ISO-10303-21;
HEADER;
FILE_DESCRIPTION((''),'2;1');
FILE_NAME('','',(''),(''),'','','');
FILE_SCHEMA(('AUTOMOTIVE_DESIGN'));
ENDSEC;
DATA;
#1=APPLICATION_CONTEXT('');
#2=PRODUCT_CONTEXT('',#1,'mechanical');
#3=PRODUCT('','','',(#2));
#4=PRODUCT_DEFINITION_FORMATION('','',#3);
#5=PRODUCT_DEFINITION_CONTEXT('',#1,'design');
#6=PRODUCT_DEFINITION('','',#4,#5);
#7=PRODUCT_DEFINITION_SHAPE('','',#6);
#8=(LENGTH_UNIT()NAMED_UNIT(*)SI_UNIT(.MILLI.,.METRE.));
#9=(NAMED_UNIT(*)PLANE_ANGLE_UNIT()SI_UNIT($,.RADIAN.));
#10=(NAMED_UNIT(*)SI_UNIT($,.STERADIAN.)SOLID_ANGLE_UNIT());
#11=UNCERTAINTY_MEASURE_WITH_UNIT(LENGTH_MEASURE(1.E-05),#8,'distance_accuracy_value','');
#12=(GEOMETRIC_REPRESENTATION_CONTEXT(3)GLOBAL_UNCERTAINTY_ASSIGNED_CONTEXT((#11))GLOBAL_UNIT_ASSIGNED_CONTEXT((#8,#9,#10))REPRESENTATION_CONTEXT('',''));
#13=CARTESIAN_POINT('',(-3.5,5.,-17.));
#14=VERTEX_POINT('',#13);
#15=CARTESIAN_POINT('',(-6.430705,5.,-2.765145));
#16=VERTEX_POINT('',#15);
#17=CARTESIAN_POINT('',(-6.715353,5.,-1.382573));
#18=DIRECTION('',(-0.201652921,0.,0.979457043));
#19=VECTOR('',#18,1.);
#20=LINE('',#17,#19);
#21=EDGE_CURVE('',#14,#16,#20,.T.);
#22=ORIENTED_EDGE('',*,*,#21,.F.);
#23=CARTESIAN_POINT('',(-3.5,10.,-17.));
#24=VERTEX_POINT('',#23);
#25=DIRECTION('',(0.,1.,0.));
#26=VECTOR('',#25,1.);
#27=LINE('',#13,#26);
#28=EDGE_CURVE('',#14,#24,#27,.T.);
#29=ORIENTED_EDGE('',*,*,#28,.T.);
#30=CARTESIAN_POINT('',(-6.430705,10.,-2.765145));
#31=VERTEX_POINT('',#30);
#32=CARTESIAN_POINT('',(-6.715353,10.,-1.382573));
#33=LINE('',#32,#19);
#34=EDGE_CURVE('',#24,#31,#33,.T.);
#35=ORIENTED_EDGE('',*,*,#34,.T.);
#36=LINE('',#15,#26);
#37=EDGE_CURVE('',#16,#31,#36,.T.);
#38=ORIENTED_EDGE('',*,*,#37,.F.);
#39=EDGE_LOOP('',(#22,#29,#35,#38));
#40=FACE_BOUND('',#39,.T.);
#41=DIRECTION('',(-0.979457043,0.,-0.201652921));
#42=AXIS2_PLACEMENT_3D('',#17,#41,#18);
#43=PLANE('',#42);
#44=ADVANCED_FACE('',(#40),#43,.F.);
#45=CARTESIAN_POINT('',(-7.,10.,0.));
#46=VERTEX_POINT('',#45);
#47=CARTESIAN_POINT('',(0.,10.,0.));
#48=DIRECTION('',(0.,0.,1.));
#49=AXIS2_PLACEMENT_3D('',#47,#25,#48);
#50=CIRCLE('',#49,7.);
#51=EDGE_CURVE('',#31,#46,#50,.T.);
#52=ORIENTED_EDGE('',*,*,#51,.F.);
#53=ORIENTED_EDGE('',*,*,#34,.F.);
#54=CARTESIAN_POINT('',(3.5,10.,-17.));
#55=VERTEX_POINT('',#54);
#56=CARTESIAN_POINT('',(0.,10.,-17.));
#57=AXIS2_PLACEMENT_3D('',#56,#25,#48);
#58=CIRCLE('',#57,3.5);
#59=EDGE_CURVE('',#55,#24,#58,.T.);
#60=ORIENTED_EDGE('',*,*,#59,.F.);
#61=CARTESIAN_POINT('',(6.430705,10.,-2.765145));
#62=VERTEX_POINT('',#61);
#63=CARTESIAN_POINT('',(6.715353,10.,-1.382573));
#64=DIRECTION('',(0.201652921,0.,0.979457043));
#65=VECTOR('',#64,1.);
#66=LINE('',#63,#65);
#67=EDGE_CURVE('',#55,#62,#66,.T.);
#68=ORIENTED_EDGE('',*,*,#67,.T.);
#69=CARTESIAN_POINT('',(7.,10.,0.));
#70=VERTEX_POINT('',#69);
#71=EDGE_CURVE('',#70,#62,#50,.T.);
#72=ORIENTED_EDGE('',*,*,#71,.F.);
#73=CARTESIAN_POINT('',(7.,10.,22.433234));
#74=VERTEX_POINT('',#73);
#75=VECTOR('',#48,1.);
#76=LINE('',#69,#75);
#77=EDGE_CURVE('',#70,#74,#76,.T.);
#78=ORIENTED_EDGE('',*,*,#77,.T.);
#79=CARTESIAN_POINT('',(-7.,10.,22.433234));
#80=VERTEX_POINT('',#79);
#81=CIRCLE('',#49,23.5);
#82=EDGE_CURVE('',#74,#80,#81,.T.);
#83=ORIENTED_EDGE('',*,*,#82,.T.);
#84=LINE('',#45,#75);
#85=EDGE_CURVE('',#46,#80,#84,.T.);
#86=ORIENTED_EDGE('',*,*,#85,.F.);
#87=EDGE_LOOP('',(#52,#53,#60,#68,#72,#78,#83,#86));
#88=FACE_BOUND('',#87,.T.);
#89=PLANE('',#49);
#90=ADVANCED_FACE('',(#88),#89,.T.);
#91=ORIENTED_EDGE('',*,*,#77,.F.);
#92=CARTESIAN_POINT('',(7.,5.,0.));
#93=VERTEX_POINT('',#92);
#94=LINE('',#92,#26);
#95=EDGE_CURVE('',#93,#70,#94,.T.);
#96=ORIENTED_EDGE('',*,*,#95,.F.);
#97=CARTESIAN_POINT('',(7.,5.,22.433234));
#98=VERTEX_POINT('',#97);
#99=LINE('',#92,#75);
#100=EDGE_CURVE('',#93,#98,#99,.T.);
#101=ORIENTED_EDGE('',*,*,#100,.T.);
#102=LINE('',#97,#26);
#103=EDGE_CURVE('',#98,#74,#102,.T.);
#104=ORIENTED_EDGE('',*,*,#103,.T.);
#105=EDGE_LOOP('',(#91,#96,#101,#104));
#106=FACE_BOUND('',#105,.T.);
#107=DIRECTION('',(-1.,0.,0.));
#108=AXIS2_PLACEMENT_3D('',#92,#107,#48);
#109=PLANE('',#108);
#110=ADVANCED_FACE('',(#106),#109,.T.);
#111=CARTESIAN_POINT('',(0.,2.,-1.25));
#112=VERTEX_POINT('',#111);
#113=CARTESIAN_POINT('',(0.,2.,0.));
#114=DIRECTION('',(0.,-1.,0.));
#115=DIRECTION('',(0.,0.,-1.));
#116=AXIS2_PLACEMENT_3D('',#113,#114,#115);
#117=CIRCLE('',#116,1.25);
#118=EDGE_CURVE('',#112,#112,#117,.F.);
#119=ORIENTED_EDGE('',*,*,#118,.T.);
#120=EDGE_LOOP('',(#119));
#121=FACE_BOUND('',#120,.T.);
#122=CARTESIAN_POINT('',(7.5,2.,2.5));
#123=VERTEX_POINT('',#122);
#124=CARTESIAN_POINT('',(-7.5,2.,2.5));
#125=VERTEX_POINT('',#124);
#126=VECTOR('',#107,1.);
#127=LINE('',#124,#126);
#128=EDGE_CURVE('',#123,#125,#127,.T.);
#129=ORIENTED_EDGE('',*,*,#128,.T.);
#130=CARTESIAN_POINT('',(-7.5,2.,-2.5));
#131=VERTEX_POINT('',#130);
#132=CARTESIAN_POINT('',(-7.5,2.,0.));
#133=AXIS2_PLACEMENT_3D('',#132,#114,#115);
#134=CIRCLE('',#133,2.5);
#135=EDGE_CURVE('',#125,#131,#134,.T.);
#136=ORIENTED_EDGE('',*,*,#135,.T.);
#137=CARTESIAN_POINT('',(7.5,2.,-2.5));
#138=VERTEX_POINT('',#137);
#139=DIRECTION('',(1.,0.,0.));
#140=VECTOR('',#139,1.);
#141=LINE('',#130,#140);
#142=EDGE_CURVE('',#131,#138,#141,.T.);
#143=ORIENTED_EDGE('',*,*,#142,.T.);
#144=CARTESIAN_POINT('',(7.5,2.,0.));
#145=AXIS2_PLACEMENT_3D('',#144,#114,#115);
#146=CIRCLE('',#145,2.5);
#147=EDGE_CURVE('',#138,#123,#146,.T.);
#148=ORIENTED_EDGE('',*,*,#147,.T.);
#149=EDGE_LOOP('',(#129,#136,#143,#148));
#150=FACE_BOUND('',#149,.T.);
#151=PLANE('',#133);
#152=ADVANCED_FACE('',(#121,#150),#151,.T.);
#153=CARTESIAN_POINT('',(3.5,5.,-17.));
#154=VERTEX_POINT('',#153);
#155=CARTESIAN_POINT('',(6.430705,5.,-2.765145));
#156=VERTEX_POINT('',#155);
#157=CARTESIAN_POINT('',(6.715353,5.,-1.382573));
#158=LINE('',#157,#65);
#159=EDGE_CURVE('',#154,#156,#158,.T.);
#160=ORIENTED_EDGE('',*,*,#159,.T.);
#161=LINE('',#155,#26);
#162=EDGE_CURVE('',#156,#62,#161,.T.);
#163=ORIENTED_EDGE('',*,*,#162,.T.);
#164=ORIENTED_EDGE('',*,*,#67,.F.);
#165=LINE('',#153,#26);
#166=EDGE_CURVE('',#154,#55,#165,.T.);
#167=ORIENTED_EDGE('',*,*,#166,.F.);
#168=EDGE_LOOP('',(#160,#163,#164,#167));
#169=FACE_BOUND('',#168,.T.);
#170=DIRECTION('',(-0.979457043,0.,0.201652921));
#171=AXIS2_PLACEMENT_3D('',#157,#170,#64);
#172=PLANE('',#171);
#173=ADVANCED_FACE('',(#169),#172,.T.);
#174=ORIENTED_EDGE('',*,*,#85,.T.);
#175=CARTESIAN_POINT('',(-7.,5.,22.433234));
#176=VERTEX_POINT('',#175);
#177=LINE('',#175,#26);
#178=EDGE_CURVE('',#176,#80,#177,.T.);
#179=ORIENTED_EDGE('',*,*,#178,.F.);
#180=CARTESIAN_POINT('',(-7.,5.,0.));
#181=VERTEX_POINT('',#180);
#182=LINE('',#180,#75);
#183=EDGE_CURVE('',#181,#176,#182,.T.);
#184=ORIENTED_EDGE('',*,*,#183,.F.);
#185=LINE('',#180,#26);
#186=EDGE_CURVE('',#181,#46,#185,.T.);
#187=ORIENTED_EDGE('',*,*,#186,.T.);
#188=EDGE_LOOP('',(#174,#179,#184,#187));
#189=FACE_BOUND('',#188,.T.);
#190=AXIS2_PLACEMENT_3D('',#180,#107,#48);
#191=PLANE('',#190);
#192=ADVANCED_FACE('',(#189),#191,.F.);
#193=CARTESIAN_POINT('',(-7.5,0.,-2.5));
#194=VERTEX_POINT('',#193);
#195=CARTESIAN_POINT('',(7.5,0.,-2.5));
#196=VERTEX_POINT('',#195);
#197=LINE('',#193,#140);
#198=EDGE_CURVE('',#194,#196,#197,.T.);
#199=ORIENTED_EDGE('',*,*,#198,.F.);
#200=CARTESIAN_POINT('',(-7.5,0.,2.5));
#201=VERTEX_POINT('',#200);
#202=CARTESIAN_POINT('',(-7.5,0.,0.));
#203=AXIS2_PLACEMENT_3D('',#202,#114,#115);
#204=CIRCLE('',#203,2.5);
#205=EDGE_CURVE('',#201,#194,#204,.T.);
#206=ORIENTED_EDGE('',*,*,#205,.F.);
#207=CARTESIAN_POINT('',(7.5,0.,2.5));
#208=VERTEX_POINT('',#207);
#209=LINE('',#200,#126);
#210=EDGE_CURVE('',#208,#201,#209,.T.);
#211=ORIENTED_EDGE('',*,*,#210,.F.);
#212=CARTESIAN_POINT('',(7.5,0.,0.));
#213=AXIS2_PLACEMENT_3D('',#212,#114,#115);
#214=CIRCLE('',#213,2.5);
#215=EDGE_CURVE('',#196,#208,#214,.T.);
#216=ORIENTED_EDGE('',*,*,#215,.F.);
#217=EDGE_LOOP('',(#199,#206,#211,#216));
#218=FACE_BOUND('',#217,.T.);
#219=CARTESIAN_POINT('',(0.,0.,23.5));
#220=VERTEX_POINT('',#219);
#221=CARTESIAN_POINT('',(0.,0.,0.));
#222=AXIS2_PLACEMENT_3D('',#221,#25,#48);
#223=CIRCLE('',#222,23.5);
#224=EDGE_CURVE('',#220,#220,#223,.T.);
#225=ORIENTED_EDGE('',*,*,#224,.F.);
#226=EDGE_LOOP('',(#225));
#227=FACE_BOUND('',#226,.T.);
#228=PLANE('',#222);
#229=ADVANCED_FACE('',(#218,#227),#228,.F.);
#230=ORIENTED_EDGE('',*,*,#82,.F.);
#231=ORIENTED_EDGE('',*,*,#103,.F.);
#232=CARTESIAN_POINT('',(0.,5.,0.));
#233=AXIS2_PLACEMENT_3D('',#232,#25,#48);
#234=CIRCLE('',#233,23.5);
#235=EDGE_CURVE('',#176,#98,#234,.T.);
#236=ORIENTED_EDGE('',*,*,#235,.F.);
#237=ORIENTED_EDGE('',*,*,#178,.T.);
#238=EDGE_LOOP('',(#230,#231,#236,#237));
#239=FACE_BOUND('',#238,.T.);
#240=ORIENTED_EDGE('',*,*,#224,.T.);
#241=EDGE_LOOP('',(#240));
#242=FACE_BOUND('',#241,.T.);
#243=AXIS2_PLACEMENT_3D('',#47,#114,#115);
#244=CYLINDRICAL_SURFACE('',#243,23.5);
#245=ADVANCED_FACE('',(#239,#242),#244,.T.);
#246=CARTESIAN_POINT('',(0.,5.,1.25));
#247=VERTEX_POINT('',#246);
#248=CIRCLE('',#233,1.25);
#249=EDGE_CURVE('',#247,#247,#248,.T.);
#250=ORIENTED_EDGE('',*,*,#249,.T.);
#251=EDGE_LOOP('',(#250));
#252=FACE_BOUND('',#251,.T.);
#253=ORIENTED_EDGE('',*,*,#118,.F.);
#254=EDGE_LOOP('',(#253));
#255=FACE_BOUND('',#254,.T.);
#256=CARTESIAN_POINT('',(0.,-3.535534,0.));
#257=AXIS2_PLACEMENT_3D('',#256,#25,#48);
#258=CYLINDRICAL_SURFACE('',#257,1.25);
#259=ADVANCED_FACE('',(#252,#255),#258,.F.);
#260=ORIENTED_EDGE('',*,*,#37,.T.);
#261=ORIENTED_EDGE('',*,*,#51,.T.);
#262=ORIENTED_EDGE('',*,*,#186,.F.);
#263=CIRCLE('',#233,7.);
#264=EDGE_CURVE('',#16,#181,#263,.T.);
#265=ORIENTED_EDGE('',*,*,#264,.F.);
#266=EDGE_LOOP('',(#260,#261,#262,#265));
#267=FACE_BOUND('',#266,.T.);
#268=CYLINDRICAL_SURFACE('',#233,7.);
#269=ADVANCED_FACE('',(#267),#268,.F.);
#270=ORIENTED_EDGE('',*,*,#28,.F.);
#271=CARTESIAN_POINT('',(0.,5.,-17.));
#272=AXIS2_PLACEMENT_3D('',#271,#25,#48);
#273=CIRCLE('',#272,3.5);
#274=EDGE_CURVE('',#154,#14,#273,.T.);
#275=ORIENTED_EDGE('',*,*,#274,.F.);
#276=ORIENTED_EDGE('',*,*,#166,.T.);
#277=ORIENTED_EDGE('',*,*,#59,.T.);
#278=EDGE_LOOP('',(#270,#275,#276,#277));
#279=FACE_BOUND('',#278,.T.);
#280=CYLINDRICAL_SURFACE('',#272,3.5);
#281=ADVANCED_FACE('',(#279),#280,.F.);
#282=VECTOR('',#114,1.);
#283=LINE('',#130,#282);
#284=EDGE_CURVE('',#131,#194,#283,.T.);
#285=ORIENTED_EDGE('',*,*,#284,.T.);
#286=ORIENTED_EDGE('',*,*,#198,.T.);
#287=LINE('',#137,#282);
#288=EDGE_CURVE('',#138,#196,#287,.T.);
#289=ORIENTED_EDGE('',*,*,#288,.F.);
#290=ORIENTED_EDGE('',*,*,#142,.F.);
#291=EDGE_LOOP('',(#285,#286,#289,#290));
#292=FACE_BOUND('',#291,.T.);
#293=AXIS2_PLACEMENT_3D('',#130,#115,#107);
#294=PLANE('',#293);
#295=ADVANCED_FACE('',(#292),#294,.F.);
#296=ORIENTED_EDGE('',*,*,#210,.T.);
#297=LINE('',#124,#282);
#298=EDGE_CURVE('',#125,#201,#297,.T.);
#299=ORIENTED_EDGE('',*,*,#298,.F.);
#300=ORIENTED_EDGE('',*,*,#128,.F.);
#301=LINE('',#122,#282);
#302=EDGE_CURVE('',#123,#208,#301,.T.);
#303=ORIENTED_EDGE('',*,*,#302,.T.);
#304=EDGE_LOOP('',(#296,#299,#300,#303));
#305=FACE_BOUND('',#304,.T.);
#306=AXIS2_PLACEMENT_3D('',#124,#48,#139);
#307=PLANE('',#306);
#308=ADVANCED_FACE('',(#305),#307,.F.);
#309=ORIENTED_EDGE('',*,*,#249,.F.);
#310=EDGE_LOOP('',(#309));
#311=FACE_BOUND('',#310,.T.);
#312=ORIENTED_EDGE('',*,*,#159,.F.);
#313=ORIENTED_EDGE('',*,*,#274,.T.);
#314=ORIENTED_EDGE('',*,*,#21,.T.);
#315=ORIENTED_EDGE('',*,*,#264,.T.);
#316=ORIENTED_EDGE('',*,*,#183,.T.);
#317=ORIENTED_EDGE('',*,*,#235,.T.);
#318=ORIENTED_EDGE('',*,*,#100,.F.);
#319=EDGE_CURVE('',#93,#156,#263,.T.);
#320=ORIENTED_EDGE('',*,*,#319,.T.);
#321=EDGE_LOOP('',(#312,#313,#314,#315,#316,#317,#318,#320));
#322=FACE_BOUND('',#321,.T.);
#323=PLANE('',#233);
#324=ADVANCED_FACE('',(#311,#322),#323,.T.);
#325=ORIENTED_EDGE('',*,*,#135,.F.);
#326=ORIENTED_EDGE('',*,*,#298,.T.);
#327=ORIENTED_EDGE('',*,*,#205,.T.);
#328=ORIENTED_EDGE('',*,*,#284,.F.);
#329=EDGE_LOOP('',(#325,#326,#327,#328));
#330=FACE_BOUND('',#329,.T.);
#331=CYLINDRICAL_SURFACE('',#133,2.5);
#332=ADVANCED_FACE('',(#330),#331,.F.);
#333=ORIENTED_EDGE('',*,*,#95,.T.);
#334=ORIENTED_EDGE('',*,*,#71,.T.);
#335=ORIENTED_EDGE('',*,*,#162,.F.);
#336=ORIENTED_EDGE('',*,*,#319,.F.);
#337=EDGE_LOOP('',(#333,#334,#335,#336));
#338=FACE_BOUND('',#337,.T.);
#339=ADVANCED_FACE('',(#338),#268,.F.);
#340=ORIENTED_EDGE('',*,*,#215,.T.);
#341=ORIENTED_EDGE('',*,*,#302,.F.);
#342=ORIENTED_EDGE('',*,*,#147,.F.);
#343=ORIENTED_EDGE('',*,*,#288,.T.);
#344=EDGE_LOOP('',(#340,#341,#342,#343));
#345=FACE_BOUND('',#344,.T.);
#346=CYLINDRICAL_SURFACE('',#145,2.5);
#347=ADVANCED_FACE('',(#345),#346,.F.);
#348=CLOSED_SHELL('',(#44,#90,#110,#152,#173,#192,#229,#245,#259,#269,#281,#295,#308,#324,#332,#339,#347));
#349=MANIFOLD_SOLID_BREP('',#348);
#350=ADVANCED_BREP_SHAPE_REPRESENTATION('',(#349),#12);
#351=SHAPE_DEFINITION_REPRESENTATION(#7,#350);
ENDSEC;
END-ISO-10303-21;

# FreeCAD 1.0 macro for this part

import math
import FreeCAD as App
import Part
import Sketcher
Q = App.Units.Quantity

doc = App.newDocument("Part")
body = doc.addObject("PartDesign::Body", "Body")

sketch1 = body.newObject("Sketcher::SketchObject", "Sketch")
sketch1.AttachmentSupport = (doc.getObject("XZ_Plane"), [""])
sketch1.MapMode = "FlatFace"
sketch1.addGeometry(Part.Circle(App.Vector(0, 0, 0), App.Vector(0, 0, 1), 24), False)
sketch1.addConstraint(Sketcher.Constraint("Coincident", 0, 3, -1, 1))
sketch1.addConstraint(Sketcher.Constraint("Diameter", 0, Q("47 mm")))
pad1 = body.newObject("PartDesign::Pad", "Pad")
pad1.Profile = sketch1
pad1.Length = 10
pad1.Reversed = True

sketch2 = body.newObject("Sketcher::SketchObject", "Sketch001")
sketch2.AttachmentSupport = (doc.getObject("XZ_Plane"), [""])
sketch2.MapMode = "FlatFace"
sketch2.AttachmentOffset = App.Placement(App.Vector(0, 0, -10), App.Rotation())
sketch2.addGeometry(Part.LineSegment(App.Vector(6.4, -2.8, 0), App.Vector(3.5, -17, 0)), False)
sketch2.addGeometry(Part.ArcOfCircle(Part.Circle(App.Vector(0, -17, 0), App.Vector(0, 0, 1), 3.5), math.radians(180), math.radians(360)), False)
sketch2.addGeometry(Part.LineSegment(App.Vector(-3.5, -17, 0), App.Vector(-6.4, -2.8, 0)), False)
sketch2.addGeometry(Part.ArcOfCircle(Part.Circle(App.Vector(0, 0, 0), App.Vector(0, 0, 1), 7), math.radians(180), math.radians(203)), False)
sketch2.addGeometry(Part.LineSegment(App.Vector(-7, 0, 0), App.Vector(-7, 22.4, 0)), False)
sketch2.addGeometry(Part.ArcOfCircle(Part.Circle(App.Vector(0, 0, 0), App.Vector(0, 0, 1), 23.5), math.radians(90), math.radians(107.33)), False)
sketch2.addGeometry(Part.ArcOfCircle(Part.Circle(App.Vector(0, 0, 0), App.Vector(0, 0, 1), 23.5), math.radians(72.67), math.radians(90)), False)
sketch2.addGeometry(Part.LineSegment(App.Vector(7, 22.4, 0), App.Vector(7, 0, 0)), False)
sketch2.addGeometry(Part.ArcOfCircle(Part.Circle(App.Vector(0, 0, 0), App.Vector(0, 0, 1), 7), math.radians(-23), math.radians(0)), False)
sketch2.addConstraint(Sketcher.Constraint("Coincident", 0, 2, 1, 2))
sketch2.addConstraint(Sketcher.Constraint("Coincident", 1, 1, 2, 1))
sketch2.addConstraint(Sketcher.Constraint("Coincident", 2, 2, 3, 2))
sketch2.addConstraint(Sketcher.Constraint("Tangent", 3, 1, 4, 1))
sketch2.addConstraint(Sketcher.Constraint("Coincident", 4, 2, 5, 2))
sketch2.addConstraint(Sketcher.Constraint("Tangent", 5, 1, 6, 2))
sketch2.addConstraint(Sketcher.Constraint("Coincident", 6, 1, 7, 1))
sketch2.addConstraint(Sketcher.Constraint("Tangent", 7, 2, 8, 2))
sketch2.addConstraint(Sketcher.Constraint("Coincident", 8, 1, 0, 1))
sketch2.addConstraint(Sketcher.Constraint("Vertical", 4))
sketch2.addConstraint(Sketcher.Constraint("Vertical", 7))
sketch2.addConstraint(Sketcher.Constraint("Coincident", 3, 3, -1, 1))
sketch2.addConstraint(Sketcher.Constraint("Coincident", 5, 3, -1, 1))
sketch2.addConstraint(Sketcher.Constraint("Coincident", 8, 3, -1, 1))
sketch2.addConstraint(Sketcher.Constraint("Equal", 5, 6))
sketch2.addConstraint(Sketcher.Constraint("Equal", 3, 8))
sketch2.addConstraint(Sketcher.Constraint("Symmetric", 0, 2, 1, 1, -2))
sketch2.addConstraint(Sketcher.Constraint("PointOnObject", 5, 1, -2))
sketch2.addConstraint(Sketcher.Constraint("Horizontal", 1, 3, 0, 2))
sketch2.addConstraint(Sketcher.Constraint("Horizontal", 2, 2, 8, 1))
sketch2.addConstraint(Sketcher.Constraint("Radius", 3, Q("7 mm")))
sketch2.addConstraint(Sketcher.Constraint("Radius", 1, Q("3.5 mm")))
sketch2.addConstraint(Sketcher.Constraint("Radius", 5, Q("23.5 mm")))
sketch2.addConstraint(Sketcher.Constraint("DistanceY", 1, 3, -1, 1, Q("17 mm")))
sketch2.addConstraint(Sketcher.Constraint("Distance", 0, Q("14.533414 mm")))
pocket1 = body.newObject("PartDesign::Pocket", "Pocket")
pocket1.Profile = sketch2
pocket1.Length = 5
pocket1.Reversed = True

sketch3 = body.newObject("Sketcher::SketchObject", "Sketch002")
sketch3.AttachmentSupport = (doc.getObject("XZ_Plane"), [""])
sketch3.MapMode = "FlatFace"
sketch3.AttachmentOffset = App.Placement(App.Vector(0, 0, -10), App.Rotation())
sketch3.addGeometry(Part.Circle(App.Vector(0, 0, 0), App.Vector(0, 0, 1), 1.2), False)
sketch3.addConstraint(Sketcher.Constraint("Coincident", 0, 3, -1, 1))
sketch3.addConstraint(Sketcher.Constraint("Diameter", 0, Q("2.5 mm")))
pocket2 = body.newObject("PartDesign::Pocket", "Pocket001")
pocket2.Profile = sketch3
pocket2.Length = 10
pocket2.Reversed = True

sketch4 = body.newObject("Sketcher::SketchObject", "Sketch003")
sketch4.AttachmentSupport = (doc.getObject("XZ_Plane"), [""])
sketch4.MapMode = "FlatFace"
sketch4.addGeometry(Part.LineSegment(App.Vector(7.5, 2.5, 0), App.Vector(-7.5, 2.5, 0)), False)
sketch4.addGeometry(Part.ArcOfCircle(Part.Circle(App.Vector(-7.5, 0, 0), App.Vector(0, 0, 1), 2.5), math.radians(90), math.radians(270)), False)
sketch4.addGeometry(Part.LineSegment(App.Vector(-7.5, -2.5, 0), App.Vector(7.5, -2.5, 0)), False)
sketch4.addGeometry(Part.ArcOfCircle(Part.Circle(App.Vector(7.5, 0, 0), App.Vector(0, 0, 1), 2.5), math.radians(-90), math.radians(90)), False)
sketch4.addConstraint(Sketcher.Constraint("Tangent", 0, 2, 1, 1))
sketch4.addConstraint(Sketcher.Constraint("Tangent", 1, 2, 2, 1))
sketch4.addConstraint(Sketcher.Constraint("Tangent", 2, 2, 3, 1))
sketch4.addConstraint(Sketcher.Constraint("Tangent", 3, 2, 0, 1))
sketch4.addConstraint(Sketcher.Constraint("Horizontal", 0))
sketch4.addConstraint(Sketcher.Constraint("Horizontal", 2))
sketch4.addConstraint(Sketcher.Constraint("Symmetric", 1, 3, 3, 3, -1, 1))
sketch4.addConstraint(Sketcher.Constraint("Radius", 1, Q("2.5 mm")))
sketch4.addConstraint(Sketcher.Constraint("DistanceX", 0, 2, 0, 1, Q("15 mm")))
pocket3 = body.newObject("PartDesign::Pocket", "Pocket002")
pocket3.Profile = sketch4
pocket3.Length = 2

doc.recompute()
